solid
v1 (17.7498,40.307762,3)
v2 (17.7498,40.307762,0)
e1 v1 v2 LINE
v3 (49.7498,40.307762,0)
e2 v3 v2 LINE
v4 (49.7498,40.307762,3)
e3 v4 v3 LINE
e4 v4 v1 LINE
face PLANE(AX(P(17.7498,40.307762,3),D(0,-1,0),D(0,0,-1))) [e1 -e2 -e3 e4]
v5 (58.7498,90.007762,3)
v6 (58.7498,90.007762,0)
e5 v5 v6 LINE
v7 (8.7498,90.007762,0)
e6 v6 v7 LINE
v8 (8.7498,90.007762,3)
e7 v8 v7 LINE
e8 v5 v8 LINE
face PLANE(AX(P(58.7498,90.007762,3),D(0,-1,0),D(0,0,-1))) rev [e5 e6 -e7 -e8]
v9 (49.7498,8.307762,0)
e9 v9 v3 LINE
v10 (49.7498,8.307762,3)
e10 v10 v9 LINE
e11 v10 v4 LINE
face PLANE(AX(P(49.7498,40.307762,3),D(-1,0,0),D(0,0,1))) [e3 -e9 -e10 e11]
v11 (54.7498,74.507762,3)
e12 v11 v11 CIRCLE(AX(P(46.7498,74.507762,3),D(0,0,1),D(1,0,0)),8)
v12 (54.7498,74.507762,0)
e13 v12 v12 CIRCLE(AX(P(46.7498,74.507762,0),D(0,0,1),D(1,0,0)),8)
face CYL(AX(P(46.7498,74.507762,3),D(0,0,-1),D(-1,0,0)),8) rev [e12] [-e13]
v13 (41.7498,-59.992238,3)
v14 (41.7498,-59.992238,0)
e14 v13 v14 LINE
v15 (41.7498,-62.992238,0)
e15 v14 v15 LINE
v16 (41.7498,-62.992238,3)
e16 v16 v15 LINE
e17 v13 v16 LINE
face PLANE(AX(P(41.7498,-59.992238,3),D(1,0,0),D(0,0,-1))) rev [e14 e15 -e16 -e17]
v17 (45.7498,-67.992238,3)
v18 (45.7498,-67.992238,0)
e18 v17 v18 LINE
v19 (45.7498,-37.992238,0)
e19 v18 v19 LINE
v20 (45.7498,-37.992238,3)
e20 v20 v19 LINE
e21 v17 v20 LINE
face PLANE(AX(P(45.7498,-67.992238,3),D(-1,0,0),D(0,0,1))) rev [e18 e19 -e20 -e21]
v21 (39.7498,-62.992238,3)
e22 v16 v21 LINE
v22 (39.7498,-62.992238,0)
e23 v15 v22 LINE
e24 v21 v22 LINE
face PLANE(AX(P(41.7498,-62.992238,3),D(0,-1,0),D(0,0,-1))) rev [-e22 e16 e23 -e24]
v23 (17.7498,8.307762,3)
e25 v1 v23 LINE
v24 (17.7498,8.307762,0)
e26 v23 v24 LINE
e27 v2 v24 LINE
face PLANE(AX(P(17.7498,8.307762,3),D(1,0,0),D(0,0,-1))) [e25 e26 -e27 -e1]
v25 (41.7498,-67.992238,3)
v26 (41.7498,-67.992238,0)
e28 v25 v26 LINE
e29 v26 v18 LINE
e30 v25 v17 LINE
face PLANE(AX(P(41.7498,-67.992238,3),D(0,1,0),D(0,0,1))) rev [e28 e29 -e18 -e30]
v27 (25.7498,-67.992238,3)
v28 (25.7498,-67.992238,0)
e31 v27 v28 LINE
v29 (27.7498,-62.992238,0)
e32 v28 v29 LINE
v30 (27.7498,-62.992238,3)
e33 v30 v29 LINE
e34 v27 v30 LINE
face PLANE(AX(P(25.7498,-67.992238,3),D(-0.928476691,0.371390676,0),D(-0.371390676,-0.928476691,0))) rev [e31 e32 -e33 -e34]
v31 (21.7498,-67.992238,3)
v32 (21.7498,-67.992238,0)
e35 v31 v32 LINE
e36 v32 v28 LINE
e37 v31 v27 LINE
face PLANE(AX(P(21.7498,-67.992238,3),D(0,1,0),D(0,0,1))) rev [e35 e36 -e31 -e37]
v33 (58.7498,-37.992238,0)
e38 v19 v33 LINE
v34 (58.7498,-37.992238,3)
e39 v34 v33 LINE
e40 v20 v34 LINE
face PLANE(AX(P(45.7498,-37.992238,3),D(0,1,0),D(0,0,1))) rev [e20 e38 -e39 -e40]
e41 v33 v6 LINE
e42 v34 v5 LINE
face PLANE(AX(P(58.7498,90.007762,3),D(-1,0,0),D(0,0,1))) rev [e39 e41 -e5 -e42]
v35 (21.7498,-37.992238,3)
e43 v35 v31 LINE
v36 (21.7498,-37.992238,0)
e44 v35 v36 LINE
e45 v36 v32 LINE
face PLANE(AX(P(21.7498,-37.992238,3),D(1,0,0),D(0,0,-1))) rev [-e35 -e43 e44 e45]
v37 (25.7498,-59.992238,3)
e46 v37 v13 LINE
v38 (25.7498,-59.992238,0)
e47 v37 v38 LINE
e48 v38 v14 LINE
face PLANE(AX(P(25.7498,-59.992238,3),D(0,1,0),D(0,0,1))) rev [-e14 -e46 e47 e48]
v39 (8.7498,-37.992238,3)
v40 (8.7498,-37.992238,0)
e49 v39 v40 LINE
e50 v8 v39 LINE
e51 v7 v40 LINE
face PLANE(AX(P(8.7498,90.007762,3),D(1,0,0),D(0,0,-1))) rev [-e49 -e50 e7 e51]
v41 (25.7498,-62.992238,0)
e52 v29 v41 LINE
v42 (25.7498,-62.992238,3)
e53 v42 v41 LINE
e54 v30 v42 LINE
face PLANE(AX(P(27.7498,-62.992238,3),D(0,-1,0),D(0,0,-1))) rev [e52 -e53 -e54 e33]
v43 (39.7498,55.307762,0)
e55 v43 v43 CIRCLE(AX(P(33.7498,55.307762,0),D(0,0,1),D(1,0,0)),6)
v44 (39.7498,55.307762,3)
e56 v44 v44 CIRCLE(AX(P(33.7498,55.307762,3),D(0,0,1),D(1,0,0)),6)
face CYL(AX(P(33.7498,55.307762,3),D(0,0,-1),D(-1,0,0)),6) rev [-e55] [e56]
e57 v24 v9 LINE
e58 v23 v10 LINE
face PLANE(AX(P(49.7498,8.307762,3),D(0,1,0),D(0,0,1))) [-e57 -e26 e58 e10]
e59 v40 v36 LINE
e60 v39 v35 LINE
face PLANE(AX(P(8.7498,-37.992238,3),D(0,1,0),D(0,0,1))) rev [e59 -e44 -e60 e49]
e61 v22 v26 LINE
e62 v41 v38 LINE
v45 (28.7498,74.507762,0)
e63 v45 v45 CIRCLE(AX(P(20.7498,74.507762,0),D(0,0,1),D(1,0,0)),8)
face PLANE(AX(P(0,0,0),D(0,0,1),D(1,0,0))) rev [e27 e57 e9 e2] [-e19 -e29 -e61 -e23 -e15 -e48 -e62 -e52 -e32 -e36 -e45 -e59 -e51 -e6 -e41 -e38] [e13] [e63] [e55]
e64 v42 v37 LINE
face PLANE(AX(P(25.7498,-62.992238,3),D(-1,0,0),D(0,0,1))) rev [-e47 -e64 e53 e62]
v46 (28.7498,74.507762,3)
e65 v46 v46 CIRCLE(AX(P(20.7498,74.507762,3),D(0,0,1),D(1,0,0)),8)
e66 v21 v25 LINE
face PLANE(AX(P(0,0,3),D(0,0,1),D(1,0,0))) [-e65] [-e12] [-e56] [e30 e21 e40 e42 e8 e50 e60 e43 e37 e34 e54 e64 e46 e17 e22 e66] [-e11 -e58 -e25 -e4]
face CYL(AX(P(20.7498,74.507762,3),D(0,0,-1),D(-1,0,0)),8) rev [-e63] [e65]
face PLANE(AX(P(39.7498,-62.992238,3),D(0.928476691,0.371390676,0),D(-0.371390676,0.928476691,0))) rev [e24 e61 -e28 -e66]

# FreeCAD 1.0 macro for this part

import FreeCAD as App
import Part
import Sketcher
from FreeCAD import Vector


def add_polygon(sketch, points):
    """Adds a closed chain of lines whose ends are joined by coincident constraints."""
    first, n = sketch.GeometryCount, len(points)
    for a, b in zip(points, points[1:] + points[:1]):
        sketch.addGeometry(Part.LineSegment(App.Vector(*a, 0), App.Vector(*b, 0)), False)
    for i in range(n):
        sketch.addConstraint(Sketcher.Constraint("Coincident", first + i, 2, first + (i + 1) % n, 1))

doc = App.newDocument("Part")
params = doc.addObject("Spreadsheet::Sheet", "Params")
for row, (alias, value) in enumerate([
    ("sketch1_diameter", "16 mm"),
    ("sketch1_diameter2", "12 mm"),
    ("sketch1_width", "50 mm"),
    ("sketch1_width2", "13 mm"),
    ("sketch1_width3", "4 mm"),
    ("pad1_length", "3 mm"),
], start=1):
    params.set(f"A{row}", alias)
    params.set(f"B{row}", "=" + value)
    params.setAlias(f"B{row}", alias)

body = doc.addObject("PartDesign::Body", "Body")

sketch1 = body.newObject("Sketcher::SketchObject", "Sketch")
sketch1.AttachmentSupport = (doc.getObject("XY_Plane"), [""])
sketch1.MapMode = "FlatFace"
add_polygon(sketch1, [(58.7, -38), (58.7, 90), (8.7, 90), (8.7, -38), (21.7, -38), (21.7, -68), (25.7, -68), (27.7, -63), (25.7, -63), (25.7, -60), (41.7, -60), (41.7, -63), (39.7, -63), (41.7, -68), (45.7, -68), (45.7, -38)])
add_polygon(sketch1, [(17.7, 8.3), (17.7, 40.3), (49.7, 40.3), (49.7, 8.3)])
sketch1.addGeometry(Part.Circle(Vector(46.7, 74.5, 0), Vector(0, 0, 1), 8), False)
sketch1.addGeometry(Part.Circle(Vector(33.7, 55.3, 0), Vector(0, 0, 1), 6), False)
sketch1.addGeometry(Part.Circle(Vector(20.7, 74.5, 0), Vector(0, 0, 1), 8), False)
sketch1.addConstraint(Sketcher.Constraint("Vertical", 0))
sketch1.addConstraint(Sketcher.Constraint("Horizontal", 1))
sketch1.addConstraint(Sketcher.Constraint("Vertical", 2))
sketch1.addConstraint(Sketcher.Constraint("Horizontal", 3))
sketch1.addConstraint(Sketcher.Constraint("Vertical", 4))
sketch1.addConstraint(Sketcher.Constraint("Horizontal", 5))
sketch1.addConstraint(Sketcher.Constraint("Horizontal", 7))
sketch1.addConstraint(Sketcher.Constraint("Vertical", 8))
sketch1.addConstraint(Sketcher.Constraint("Horizontal", 9))
sketch1.addConstraint(Sketcher.Constraint("Vertical", 10))
sketch1.addConstraint(Sketcher.Constraint("Horizontal", 11))
sketch1.addConstraint(Sketcher.Constraint("Horizontal", 13))
sketch1.addConstraint(Sketcher.Constraint("Vertical", 14))
sketch1.addConstraint(Sketcher.Constraint("Horizontal", 15))
sketch1.addConstraint(Sketcher.Constraint("Vertical", 16))
sketch1.addConstraint(Sketcher.Constraint("Horizontal", 17))
sketch1.addConstraint(Sketcher.Constraint("Vertical", 18))
sketch1.addConstraint(Sketcher.Constraint("Horizontal", 19))
sketch1.addConstraint(Sketcher.Constraint("Equal", 20, 22))
sketch1.addConstraint(Sketcher.Constraint("Horizontal", 20, 3, 22, 3))
sketch1.addConstraint(Sketcher.Constraint("Horizontal", 7, 2, 10, 2))
sketch1.addConstraint(Sketcher.Constraint("Horizontal", 5, 2, 12, 2))
sketch1.addConstraint(Sketcher.Constraint("Horizontal", 3, 2, 14, 2))
sketch1.addConstraint(Sketcher.Constraint("Vertical", 5, 2, 7, 2))
sketch1.addConstraint(Sketcher.Constraint("Vertical", 10, 2, 12, 2))
sketch1.addConstraint(Sketcher.Constraint("Equal", 7, 11))
sketch1.addConstraint(Sketcher.Constraint("Equal", 5, 13))
sketch1.addConstraint(Sketcher.Constraint("Equal", 3, 15))
sketch1.addConstraint(Sketcher.Constraint("Equal", 19, 16))
sketch1.addConstraint(Sketcher.Constraint("Diameter", 20, 16.0))
sketch1.addConstraint(Sketcher.Constraint("Diameter", 21, 12.0))
sketch1.addConstraint(Sketcher.Constraint("DistanceX", 1, 2, 1, 1, 50.0))
sketch1.addConstraint(Sketcher.Constraint("DistanceX", 3, 1, 3, 2, 13.0))
sketch1.addConstraint(Sketcher.Constraint("DistanceX", 5, 1, 5, 2, 4.0))
sketch1.addConstraint(Sketcher.Constraint("DistanceX", 7, 2, 7, 1, 2.0))
sketch1.addConstraint(Sketcher.Constraint("DistanceX", 17, 1, 17, 2, 32.0))
sketch1.addConstraint(Sketcher.Constraint("DistanceY", 0, 1, 0, 2, 128.0))
sketch1.addConstraint(Sketcher.Constraint("DistanceY", 4, 2, 4, 1, 30.0))
sketch1.addConstraint(Sketcher.Constraint("DistanceY", 8, 1, 8, 2, 3.0))
sketch1.addConstraint(Sketcher.Constraint("DistanceX", 21, 3, 20, 3, 13.0))
sketch1.addConstraint(Sketcher.Constraint("DistanceX", 22, 3, 21, 3, 13.0))
sketch1.addConstraint(Sketcher.Constraint("DistanceX", 20, 3, 0, 2, 12.0))
sketch1.addConstraint(Sketcher.Constraint("DistanceY", 5, 2, 6, 2, 5.0))
sketch1.addConstraint(Sketcher.Constraint("DistanceX", 16, 2, 21, 3, 16.0))
sketch1.addConstraint(Sketcher.Constraint("DistanceY", 16, 2, 21, 3, 15.0))
sketch1.addConstraint(Sketcher.Constraint("DistanceY", 21, 3, 20, 3, 19.2))
sketch1.addConstraint(Sketcher.Constraint("DistanceY", 20, 3, 0, 2, 15.5))
sketch1.addConstraint(Sketcher.Constraint("DistanceX", -1, 1, 20, 3, 46.7498))
sketch1.addConstraint(Sketcher.Constraint("DistanceY", -1, 1, 20, 3, 74.507762))
sketch1.setExpression("Constraints[49]", "Params.sketch1_diameter")
sketch1.setExpression("Constraints[50]", "Params.sketch1_diameter2")
sketch1.setExpression("Constraints[51]", "Params.sketch1_width")
sketch1.setExpression("Constraints[52]", "Params.sketch1_width2")
sketch1.setExpression("Constraints[53]", "Params.sketch1_width3")
pad1 = body.newObject("PartDesign::Pad", "Pad")
pad1.Profile = sketch1
pad1.setExpression("Length", "Params.pad1_length")

doc.recompute()
